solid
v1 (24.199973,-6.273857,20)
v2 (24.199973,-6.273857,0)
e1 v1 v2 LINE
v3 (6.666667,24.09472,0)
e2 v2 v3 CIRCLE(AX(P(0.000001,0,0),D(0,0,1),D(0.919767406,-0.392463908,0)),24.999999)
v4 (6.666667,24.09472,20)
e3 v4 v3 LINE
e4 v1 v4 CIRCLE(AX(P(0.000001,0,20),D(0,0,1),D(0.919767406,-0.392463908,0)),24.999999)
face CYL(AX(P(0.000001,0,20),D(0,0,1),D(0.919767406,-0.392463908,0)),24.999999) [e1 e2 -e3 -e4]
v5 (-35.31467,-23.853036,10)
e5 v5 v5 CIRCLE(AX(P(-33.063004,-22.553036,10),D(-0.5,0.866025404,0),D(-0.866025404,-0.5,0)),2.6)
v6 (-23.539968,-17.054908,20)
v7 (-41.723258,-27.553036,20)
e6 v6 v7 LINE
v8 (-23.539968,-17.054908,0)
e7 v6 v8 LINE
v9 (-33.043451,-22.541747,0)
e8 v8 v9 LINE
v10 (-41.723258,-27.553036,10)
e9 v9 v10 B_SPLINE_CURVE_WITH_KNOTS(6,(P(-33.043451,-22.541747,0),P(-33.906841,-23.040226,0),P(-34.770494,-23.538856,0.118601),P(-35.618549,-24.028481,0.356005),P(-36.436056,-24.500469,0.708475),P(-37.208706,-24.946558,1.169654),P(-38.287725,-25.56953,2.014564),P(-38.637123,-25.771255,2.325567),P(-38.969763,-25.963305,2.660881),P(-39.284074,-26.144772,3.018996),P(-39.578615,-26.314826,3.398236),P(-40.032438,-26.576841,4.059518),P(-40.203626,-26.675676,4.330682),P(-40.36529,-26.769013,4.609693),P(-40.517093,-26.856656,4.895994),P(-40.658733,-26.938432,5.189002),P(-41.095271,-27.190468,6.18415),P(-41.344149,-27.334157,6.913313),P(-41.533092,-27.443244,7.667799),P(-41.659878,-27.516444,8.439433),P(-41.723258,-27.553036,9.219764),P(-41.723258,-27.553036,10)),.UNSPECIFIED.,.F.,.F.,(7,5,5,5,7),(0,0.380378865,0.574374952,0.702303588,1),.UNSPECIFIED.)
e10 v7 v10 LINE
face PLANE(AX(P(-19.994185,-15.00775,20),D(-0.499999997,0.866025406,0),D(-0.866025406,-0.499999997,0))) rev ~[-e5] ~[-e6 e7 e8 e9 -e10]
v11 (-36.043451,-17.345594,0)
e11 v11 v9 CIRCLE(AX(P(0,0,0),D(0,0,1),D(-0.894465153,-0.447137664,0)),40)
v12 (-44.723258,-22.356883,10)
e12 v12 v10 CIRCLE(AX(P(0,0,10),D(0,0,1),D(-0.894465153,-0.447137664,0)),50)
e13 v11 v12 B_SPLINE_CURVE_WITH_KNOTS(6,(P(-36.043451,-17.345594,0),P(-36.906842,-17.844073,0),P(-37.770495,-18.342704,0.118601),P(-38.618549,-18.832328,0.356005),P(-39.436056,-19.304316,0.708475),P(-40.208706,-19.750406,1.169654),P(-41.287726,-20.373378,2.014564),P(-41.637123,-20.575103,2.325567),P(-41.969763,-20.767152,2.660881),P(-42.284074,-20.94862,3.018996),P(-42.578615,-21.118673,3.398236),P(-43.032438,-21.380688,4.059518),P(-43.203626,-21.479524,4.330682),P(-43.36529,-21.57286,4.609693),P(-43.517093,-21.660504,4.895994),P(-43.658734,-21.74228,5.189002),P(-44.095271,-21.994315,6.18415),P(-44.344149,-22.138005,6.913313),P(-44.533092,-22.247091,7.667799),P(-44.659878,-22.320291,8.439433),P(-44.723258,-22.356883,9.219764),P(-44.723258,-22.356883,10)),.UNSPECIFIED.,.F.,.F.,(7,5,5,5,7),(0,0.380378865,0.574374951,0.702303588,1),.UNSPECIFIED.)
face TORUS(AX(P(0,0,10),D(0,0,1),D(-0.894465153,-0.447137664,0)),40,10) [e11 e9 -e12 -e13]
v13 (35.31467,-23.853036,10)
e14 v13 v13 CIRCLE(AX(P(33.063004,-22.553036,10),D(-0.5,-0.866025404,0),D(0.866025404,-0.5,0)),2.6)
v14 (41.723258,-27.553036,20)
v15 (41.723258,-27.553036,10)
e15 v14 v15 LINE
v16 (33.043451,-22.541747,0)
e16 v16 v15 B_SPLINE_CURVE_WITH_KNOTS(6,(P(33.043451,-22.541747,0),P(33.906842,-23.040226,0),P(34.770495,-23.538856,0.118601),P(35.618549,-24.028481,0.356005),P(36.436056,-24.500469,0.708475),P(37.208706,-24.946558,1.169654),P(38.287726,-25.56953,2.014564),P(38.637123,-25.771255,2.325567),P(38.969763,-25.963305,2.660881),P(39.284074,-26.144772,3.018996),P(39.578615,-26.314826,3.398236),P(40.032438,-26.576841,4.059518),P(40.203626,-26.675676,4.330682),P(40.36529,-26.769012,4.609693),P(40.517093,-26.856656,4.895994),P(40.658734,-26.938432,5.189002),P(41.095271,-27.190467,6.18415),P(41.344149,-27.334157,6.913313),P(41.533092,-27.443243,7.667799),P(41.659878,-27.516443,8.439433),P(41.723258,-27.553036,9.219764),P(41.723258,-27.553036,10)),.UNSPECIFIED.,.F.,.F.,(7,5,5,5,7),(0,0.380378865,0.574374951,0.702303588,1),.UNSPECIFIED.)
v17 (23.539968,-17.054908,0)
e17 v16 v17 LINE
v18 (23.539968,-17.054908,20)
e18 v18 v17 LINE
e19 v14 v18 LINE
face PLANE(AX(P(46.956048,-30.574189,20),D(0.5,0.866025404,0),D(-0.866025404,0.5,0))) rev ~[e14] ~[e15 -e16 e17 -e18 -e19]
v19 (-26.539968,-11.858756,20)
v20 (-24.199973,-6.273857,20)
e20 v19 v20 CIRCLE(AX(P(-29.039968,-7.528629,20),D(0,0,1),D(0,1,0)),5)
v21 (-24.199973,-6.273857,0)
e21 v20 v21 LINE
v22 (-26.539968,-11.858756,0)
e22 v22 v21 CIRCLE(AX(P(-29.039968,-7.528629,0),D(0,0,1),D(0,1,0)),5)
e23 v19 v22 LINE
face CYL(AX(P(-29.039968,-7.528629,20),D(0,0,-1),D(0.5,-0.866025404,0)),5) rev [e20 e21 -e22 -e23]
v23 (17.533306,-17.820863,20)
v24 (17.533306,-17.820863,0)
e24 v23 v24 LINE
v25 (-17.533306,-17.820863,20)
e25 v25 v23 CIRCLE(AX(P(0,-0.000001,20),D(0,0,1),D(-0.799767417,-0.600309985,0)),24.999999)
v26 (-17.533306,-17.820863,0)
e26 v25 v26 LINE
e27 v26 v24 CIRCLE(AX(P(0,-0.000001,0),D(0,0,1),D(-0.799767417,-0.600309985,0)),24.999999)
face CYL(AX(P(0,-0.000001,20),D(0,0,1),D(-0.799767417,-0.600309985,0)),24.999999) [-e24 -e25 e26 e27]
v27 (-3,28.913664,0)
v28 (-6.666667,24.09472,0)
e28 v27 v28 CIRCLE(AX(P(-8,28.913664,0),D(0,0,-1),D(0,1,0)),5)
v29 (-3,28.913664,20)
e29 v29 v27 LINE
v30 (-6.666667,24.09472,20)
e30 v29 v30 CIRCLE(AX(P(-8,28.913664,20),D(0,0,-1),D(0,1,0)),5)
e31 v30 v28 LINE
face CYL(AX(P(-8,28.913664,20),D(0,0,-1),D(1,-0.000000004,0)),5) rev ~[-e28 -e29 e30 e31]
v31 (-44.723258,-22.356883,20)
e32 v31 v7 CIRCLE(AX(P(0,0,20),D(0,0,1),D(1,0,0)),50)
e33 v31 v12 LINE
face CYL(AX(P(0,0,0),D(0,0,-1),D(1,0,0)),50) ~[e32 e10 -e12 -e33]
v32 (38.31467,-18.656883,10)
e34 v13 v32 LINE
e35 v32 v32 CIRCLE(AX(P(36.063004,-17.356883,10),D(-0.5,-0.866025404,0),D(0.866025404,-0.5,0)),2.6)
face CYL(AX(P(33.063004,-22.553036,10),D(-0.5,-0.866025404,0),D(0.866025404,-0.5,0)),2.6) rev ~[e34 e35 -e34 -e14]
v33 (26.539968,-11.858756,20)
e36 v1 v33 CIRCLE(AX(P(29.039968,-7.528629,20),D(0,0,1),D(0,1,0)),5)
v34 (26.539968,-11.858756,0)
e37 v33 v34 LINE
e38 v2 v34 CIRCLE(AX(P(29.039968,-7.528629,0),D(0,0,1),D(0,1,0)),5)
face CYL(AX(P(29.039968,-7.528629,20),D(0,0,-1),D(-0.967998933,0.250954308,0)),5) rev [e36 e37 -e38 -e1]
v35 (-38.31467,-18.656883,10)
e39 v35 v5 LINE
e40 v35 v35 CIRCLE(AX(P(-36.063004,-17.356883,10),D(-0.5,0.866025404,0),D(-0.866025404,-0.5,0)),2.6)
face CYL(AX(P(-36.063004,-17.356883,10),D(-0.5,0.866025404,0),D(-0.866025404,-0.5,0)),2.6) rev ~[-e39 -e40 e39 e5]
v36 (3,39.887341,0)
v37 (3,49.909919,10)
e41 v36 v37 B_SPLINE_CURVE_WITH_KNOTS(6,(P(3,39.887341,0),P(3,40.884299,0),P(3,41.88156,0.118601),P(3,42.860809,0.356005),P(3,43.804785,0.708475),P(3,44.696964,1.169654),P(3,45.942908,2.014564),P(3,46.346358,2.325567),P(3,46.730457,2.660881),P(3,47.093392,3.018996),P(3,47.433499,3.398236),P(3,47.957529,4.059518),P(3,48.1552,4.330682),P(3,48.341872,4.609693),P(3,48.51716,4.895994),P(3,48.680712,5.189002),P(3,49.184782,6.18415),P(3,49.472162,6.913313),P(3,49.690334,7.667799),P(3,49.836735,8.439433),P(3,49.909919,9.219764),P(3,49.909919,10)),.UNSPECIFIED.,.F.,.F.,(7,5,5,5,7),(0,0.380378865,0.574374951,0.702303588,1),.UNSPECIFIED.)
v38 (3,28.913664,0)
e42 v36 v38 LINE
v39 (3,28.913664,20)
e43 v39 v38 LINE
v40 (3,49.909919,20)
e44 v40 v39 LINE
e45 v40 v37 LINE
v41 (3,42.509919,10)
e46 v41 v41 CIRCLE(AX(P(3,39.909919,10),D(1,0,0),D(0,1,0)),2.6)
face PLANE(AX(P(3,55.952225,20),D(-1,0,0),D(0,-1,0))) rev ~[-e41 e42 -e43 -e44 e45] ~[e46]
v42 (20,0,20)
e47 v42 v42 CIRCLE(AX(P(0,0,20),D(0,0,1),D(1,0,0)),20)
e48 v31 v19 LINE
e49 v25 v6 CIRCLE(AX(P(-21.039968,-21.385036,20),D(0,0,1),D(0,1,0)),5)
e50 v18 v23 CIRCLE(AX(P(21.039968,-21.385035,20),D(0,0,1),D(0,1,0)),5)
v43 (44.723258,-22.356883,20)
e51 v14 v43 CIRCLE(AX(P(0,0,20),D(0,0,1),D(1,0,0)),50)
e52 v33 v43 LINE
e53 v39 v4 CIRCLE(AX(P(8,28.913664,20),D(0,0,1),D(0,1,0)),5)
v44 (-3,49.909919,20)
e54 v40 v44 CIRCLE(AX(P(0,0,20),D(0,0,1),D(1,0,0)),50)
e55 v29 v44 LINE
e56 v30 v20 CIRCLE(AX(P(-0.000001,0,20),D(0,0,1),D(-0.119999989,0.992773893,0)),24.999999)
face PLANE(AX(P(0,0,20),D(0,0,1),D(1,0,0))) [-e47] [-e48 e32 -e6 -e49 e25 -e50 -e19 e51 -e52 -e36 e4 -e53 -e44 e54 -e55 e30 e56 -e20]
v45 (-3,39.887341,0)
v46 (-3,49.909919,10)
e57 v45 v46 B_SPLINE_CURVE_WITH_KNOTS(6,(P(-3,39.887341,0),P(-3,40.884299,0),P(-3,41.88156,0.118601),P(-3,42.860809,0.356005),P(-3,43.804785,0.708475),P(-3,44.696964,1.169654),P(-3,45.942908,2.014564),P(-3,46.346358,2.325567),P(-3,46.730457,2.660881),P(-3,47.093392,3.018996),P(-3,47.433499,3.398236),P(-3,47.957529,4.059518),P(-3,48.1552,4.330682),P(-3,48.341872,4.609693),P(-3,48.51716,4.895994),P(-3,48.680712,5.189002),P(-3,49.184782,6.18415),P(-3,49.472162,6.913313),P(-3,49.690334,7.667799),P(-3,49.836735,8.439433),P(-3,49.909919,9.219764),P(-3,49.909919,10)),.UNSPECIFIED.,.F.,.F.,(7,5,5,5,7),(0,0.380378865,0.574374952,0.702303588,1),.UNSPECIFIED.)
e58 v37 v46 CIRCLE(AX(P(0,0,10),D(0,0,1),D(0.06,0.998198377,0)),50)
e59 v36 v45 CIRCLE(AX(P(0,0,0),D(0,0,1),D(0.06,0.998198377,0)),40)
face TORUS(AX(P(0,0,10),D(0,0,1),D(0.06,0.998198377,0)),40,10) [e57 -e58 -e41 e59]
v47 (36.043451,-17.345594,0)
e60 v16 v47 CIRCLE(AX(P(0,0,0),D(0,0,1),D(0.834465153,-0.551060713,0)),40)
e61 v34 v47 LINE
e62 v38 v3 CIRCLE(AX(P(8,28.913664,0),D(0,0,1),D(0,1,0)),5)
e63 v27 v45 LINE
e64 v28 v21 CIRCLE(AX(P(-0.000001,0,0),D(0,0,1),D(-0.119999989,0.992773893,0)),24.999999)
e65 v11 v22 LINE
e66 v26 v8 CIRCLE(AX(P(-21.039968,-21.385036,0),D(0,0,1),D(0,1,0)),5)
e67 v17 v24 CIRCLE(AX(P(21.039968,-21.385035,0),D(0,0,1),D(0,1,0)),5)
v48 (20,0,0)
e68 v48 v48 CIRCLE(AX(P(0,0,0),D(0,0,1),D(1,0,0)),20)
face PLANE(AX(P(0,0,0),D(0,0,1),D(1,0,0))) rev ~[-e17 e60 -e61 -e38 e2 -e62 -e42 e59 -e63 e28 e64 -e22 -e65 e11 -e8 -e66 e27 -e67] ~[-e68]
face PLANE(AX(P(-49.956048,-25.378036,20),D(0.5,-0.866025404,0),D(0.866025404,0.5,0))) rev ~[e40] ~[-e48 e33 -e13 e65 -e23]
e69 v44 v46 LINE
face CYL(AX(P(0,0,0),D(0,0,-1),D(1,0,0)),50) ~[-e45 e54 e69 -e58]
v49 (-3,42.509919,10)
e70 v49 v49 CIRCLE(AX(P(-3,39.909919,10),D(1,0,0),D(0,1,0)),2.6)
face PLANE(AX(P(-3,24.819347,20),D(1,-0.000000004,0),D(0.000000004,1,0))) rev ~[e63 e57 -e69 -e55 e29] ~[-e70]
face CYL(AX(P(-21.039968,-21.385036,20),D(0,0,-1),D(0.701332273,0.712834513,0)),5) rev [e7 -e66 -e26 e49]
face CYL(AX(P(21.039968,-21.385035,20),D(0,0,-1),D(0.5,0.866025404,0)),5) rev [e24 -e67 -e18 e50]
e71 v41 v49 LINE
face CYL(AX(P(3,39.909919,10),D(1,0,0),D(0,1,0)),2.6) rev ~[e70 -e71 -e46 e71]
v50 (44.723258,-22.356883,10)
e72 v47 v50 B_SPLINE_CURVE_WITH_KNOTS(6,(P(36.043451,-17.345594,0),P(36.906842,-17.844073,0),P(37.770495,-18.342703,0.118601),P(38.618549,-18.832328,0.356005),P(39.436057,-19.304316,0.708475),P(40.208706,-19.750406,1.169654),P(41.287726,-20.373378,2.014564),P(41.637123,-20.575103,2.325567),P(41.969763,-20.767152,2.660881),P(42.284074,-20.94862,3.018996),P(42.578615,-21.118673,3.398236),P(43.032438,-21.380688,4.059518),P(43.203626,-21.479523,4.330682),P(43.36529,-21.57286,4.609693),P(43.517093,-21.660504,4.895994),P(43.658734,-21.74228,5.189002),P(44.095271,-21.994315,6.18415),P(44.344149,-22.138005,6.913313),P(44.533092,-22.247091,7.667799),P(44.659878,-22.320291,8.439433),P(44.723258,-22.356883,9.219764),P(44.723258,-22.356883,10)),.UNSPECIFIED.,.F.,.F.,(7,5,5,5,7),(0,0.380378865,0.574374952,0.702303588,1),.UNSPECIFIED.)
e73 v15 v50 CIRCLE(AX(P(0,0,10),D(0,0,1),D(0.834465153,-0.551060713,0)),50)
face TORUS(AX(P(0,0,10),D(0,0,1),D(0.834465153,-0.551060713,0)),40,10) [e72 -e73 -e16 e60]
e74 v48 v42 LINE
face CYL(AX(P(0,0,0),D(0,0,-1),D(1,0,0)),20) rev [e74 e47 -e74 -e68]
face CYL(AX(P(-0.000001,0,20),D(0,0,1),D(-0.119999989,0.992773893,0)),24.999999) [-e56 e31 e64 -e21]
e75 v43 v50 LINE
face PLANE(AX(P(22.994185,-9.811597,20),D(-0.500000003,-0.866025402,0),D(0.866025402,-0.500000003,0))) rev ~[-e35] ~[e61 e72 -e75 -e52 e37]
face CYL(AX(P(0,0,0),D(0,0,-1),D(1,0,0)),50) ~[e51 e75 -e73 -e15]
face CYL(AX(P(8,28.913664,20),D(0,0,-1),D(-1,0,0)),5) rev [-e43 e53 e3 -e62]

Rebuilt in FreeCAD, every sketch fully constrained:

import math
import FreeCAD as App
import Part
import Sketcher
Q = App.Units.Quantity


def edges_at(feature, points):
    """Names of the edges that pass closest to the given points."""
    edges = feature.Shape.Edges
    near = lambda p: min(range(len(edges)), key=lambda i: edges[i].distToShape(Part.Vertex(*p))[0])
    return sorted({f"Edge{near(p) + 1}" for p in points})

doc = App.newDocument("Part")
body = doc.addObject("PartDesign::Body", "Body")

sketch1 = body.newObject("Sketcher::SketchObject", "Sketch")
sketch1.AttachmentSupport = (doc.getObject("XY_Plane"), [""])
sketch1.MapMode = "FlatFace"
sketch1.addGeometry(Part.Circle(App.Vector(0, 0, 0), App.Vector(0, 0, 1), 50), False)
sketch1.addGeometry(Part.Circle(App.Vector(0, 0, 0), App.Vector(0, 0, 1), 20), False)
sketch1.addConstraint(Sketcher.Constraint("Coincident", 0, 3, -1, 1))
sketch1.addConstraint(Sketcher.Constraint("Coincident", 1, 3, -1, 1))
sketch1.addConstraint(Sketcher.Constraint("Diameter", 0, Q("100 mm")))
sketch1.addConstraint(Sketcher.Constraint("Diameter", 1, Q("40 mm")))
pad1 = body.newObject("PartDesign::Pad", "Pad")
pad1.Profile = sketch1
pad1.Length = 20

sketch2 = body.newObject("Sketcher::SketchObject", "Sketch001")
sketch2.AttachmentSupport = (doc.getObject("XY_Plane"), [""])
sketch2.MapMode = "FlatFace"
sketch2.AttachmentOffset = App.Placement(App.Vector(0, 0, 20), App.Rotation())
sketch2.addGeometry(Part.ArcOfCircle(Part.Circle(App.Vector(0.000001, 0, 0), App.Vector(0, 0, 1), 24.999999), math.radians(-23.107898), math.radians(83.107898)), False)
sketch2.addGeometry(Part.LineSegment(App.Vector(22.994185, -9.811597, 0), App.Vector(49.956048, -25.378036, 0)), False)
sketch2.addGeometry(Part.ArcOfCircle(Part.Circle(App.Vector(0.000001, 0.000001, 0), App.Vector(0, 0, 1), 56.032592), math.radians(-26.930902), math.radians(86.930902)), False)
sketch2.addGeometry(Part.LineSegment(App.Vector(3, 55.952225, 0), App.Vector(3, 24.819347, 0)), False)
sketch2.addConstraint(Sketcher.Constraint("Coincident", 0, 1, 1, 1))
sketch2.addConstraint(Sketcher.Constraint("Coincident", 1, 2, 2, 1))
sketch2.addConstraint(Sketcher.Constraint("Coincident", 2, 2, 3, 1))
sketch2.addConstraint(Sketcher.Constraint("Coincident", 3, 2, 0, 2))
sketch2.addConstraint(Sketcher.Constraint("Vertical", 3))
sketch2.addConstraint(Sketcher.Constraint("Coincident", 0, 3, -1, 1))
sketch2.addConstraint(Sketcher.Constraint("Coincident", 2, 3, -1, 1))
sketch2.addConstraint(Sketcher.Constraint("Radius", 0, Q("24.999999 mm")))
sketch2.addConstraint(Sketcher.Constraint("Angle", 1, Q("-30 deg")))
sketch2.addConstraint(Sketcher.Constraint("DistanceX", -1, 1, 2, 2, Q("3 mm")))
sketch2.addConstraint(Sketcher.Constraint("Radius", 2, Q("56.032592 mm")))
sketch2.addConstraint(Sketcher.Constraint("DistanceX", -1, 1, 1, 2, Q("49.956048 mm")))
pocket1 = body.newObject("PartDesign::Pocket", "Pocket")
pocket1.Profile = sketch2
pocket1.Type = "ThroughAll"
doc.recompute()

polarpattern = body.newObject("PartDesign::PolarPattern", "PolarPattern")
polarpattern.Originals = [pocket1]
polarpattern.Axis = (doc.getObject("Z_Axis"), [""])
polarpattern.Angle = 360
polarpattern.Occurrences = 3
body.Tip = polarpattern

sketch3 = body.newObject("Sketcher::SketchObject", "Sketch002")
sketch3.AttachmentSupport = (doc.getObject("YZ_Plane"), [""])
sketch3.MapMode = "FlatFace"
sketch3.AttachmentOffset = App.Placement(App.Vector(0, 0, 3), App.Rotation())
sketch3.addGeometry(Part.Circle(App.Vector(39.909919, 10, 0), App.Vector(0, 0, 1), 2.6), False)
sketch3.addConstraint(Sketcher.Constraint("Diameter", 0, Q("5.2 mm")))
sketch3.addConstraint(Sketcher.Constraint("DistanceY", -1, 1, 0, 3, Q("10 mm")))
sketch3.addConstraint(Sketcher.Constraint("DistanceX", -1, 1, 0, 3, Q("39.909919 mm")))
pocket2 = body.newObject("PartDesign::Pocket", "Pocket001")
pocket2.Profile = sketch3
pocket2.Type = "ThroughAll"
doc.recompute()

polarpattern2 = body.newObject("PartDesign::PolarPattern", "PolarPattern001")
polarpattern2.Originals = [pocket2]
polarpattern2.Axis = (doc.getObject("Z_Axis"), [""])
polarpattern2.Angle = 360
polarpattern2.Occurrences = 3
body.Tip = polarpattern2
doc.recompute()

fillet = body.newObject("PartDesign::Fillet", "Fillet")
fillet.Base = (polarpattern2, edges_at(polarpattern2, [
    (-22.994, -9.812, 10),
    (-19.994, -15.008, 10),
    (19.994, -15.008, 10),
    (22.994, -9.812, 10),
    (3, 24.819, 10),
    (-3, 24.819, 10),
]))
fillet.Radius = 5
doc.recompute()

fillet2 = body.newObject("PartDesign::Fillet", "Fillet001")
fillet2.Base = (fillet, edges_at(fillet, [(0, 50, 0), (-43.301, -25, 0), (43.301, -25, 0)]))
fillet2.Radius = 10

doc.recompute()
